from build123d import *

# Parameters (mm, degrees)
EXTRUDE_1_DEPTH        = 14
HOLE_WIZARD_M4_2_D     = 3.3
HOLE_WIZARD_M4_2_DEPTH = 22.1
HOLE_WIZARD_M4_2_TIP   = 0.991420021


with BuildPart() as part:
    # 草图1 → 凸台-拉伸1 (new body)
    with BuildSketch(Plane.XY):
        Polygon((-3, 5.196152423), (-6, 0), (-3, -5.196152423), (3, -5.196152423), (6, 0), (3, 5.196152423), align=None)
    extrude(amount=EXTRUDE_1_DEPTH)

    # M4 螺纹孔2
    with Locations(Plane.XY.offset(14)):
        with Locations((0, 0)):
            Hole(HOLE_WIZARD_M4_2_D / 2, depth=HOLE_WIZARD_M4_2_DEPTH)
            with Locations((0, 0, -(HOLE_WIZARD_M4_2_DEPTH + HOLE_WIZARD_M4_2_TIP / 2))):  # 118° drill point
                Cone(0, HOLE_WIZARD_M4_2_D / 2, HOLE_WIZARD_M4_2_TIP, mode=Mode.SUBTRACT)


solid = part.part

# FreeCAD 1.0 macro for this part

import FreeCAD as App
import Part
import Sketcher
from FreeCAD import Vector
Q = App.Units.Quantity


def add_polygon(sketch, points):
    """Adds a closed chain of lines whose ends are joined by coincident constraints."""
    first, n = sketch.GeometryCount, len(points)
    for a, b in zip(points, points[1:] + points[:1]):
        sketch.addGeometry(Part.LineSegment(App.Vector(*a, 0), App.Vector(*b, 0)), False)
    for i in range(n):
        sketch.addConstraint(Sketcher.Constraint("Coincident", first + i, 2, first + (i + 1) % n, 1))

doc = App.newDocument("Part")
body = doc.addObject("PartDesign::Body", "Body")

# Sketch on XY plane
sketch1 = body.newObject("Sketcher::SketchObject", "Sketch")
sketch1.AttachmentSupport = (doc.getObject("XY_Plane"), [""])
sketch1.MapMode = "FlatFace"
add_polygon(sketch1, [(-3, 5), (-6, 0), (-3, -5), (3, -5), (6, 0), (3, 5)])  # lines 0-5
sketch1.addConstraint(Sketcher.Constraint("Horizontal", 2))
sketch1.addConstraint(Sketcher.Constraint("Horizontal", 5))
sketch1.addConstraint(Sketcher.Constraint("Symmetric", 0, 2, 3, 2, -1, 1))
sketch1.addConstraint(Sketcher.Constraint("Symmetric", 1, 2, 4, 2, -1, 1))
sketch1.addConstraint(Sketcher.Constraint("PointOnObject", 0, 2, -1))
sketch1.addConstraint(Sketcher.Constraint("Parallel", 0, 3))
sketch1.addConstraint(Sketcher.Constraint("Vertical", 2, 2, 4, 2))
sketch1.addConstraint(Sketcher.Constraint("DistanceX", 2, 1, 2, 2, Q("6 mm")))
sketch1.addConstraint(Sketcher.Constraint("Angle", 0, Q("-120 deg")))
sketch1.addConstraint(Sketcher.Constraint("Distance", 0, Q("6 mm")))
pad1 = body.newObject("PartDesign::Pad", "Pad")
pad1.Profile = sketch1
pad1.Length = 14

# Sketch on XY plane
sketch2 = body.newObject("Sketcher::SketchObject", "Sketch001")
sketch2.AttachmentSupport = (doc.getObject("XY_Plane"), [""])
sketch2.MapMode = "FlatFace"
sketch2.AttachmentOffset = App.Placement(Vector(0, 0, 14), App.Rotation())
sketch2.addGeometry(Part.Circle(Vector(0, 0, 0), Vector(0, 0, 1), 1.6), False)
sketch2.addConstraint(Sketcher.Constraint("Coincident", 0, 3, -1, 1))
sketch2.addConstraint(Sketcher.Constraint("Diameter", 0, Q("3.3 mm")))
doc.recompute()
hole = body.newObject("PartDesign::Hole", "Hole")
hole.Profile = sketch2
hole.ThreadType = "None"
hole.Diameter = 3.3
hole.DepthType = "Dimension"
hole.Depth = 22.1
hole.DrillPoint = "Angled"
hole.DrillPointAngle = 118

doc.recompute()
